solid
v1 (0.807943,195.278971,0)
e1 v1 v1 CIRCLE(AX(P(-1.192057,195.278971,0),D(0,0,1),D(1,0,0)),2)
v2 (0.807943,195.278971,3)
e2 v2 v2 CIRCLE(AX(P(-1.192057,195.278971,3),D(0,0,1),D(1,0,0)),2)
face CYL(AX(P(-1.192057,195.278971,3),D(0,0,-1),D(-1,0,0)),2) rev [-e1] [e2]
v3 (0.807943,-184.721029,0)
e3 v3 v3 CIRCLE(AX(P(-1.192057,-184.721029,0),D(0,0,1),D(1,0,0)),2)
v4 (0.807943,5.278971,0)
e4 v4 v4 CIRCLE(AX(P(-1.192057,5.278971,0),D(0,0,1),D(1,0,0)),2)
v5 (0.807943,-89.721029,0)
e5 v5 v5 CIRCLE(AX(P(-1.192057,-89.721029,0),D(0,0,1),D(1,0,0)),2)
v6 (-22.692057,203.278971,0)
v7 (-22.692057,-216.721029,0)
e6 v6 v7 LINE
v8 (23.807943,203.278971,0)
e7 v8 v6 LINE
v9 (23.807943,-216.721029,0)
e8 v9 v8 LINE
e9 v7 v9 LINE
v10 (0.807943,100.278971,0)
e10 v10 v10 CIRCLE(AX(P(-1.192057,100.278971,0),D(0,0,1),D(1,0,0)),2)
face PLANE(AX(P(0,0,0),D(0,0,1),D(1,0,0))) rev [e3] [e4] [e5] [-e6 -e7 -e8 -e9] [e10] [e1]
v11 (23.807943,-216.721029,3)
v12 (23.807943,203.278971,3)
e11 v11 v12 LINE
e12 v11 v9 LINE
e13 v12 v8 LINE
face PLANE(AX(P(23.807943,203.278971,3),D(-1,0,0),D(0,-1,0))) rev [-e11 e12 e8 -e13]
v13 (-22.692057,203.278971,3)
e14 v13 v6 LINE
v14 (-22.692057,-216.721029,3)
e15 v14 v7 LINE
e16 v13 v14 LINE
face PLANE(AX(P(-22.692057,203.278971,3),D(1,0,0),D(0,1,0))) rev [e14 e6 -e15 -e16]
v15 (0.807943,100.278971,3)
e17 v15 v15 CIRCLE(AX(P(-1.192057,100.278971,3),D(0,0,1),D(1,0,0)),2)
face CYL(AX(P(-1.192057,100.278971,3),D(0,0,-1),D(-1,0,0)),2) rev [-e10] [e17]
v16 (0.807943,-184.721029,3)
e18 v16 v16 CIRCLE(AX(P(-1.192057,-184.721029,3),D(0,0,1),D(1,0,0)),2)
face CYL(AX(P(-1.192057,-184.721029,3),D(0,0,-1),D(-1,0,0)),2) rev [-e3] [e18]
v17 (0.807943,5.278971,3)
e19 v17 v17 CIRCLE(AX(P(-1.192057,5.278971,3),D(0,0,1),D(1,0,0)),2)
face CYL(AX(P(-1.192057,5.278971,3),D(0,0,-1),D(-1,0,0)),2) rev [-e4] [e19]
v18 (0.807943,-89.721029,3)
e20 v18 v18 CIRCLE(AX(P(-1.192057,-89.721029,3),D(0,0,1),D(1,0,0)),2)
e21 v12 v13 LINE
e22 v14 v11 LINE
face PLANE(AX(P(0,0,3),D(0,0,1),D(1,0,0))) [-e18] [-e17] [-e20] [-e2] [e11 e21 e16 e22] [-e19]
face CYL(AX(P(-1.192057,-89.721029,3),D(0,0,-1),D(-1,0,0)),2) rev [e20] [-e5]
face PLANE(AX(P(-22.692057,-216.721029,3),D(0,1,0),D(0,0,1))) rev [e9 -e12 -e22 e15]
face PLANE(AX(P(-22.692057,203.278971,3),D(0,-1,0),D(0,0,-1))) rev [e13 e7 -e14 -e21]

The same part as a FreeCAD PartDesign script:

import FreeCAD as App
import Part
import Sketcher
from FreeCAD import Vector
Q = App.Units.Quantity


def add_polygon(sketch, points):
    """Adds a closed chain of lines whose ends are joined by coincident constraints."""
    first, n = sketch.GeometryCount, len(points)
    for a, b in zip(points, points[1:] + points[:1]):
        sketch.addGeometry(Part.LineSegment(App.Vector(*a, 0), App.Vector(*b, 0)), False)
    for i in range(n):
        sketch.addConstraint(Sketcher.Constraint("Coincident", first + i, 2, first + (i + 1) % n, 1))

doc = App.newDocument("Part")
body = doc.addObject("PartDesign::Body", "Body")

# Sketch on XY plane
sketch1 = body.newObject("Sketcher::SketchObject", "Sketch")
sketch1.AttachmentSupport = (doc.getObject("XY_Plane"), [""])
sketch1.MapMode = "FlatFace"
add_polygon(sketch1, [(-22.7, 203.3), (-22.7, -216.7), (23.8, -216.7), (23.8, 203.3)])  # lines 0-3
sketch1.addGeometry(Part.Circle(Vector(-1.2, -184.7, 0), Vector(0, 0, 1), 2), False)  # 4
sketch1.addGeometry(Part.Circle(Vector(-1.2, -89.7, 0), Vector(0, 0, 1), 2), False)  # 5
sketch1.addGeometry(Part.Circle(Vector(-1.2, 5.3, 0), Vector(0, 0, 1), 2), False)  # 6
sketch1.addGeometry(Part.Circle(Vector(-1.2, 100.3, 0), Vector(0, 0, 1), 2), False)  # 7
sketch1.addGeometry(Part.Circle(Vector(-1.2, 195.3, 0), Vector(0, 0, 1), 2), False)  # 8
sketch1.addConstraint([
    Sketcher.Constraint("Vertical", 0),
    Sketcher.Constraint("Horizontal", 1),
    Sketcher.Constraint("Vertical", 2),
    Sketcher.Constraint("Horizontal", 3),
    Sketcher.Constraint("Equal", 4, 5),
    Sketcher.Constraint("Equal", 5, 6),
    Sketcher.Constraint("Equal", 6, 7),
    Sketcher.Constraint("Equal", 7, 8),
    Sketcher.Constraint("Vertical", 4, 3, 5, 3),
    Sketcher.Constraint("Vertical", 5, 3, 6, 3),
    Sketcher.Constraint("Vertical", 6, 3, 7, 3),
    Sketcher.Constraint("Vertical", 7, 3, 8, 3),
    Sketcher.Constraint("Diameter", 4, Q("4 mm")),
    Sketcher.Constraint("DistanceY", 0, 2, 0, 1, Q("420 mm")),
    Sketcher.Constraint("DistanceX", 1, 1, 1, 2, Q("46.5 mm")),
    Sketcher.Constraint("DistanceY", 4, 3, 5, 3, Q("95 mm")),
    Sketcher.Constraint("DistanceY", 5, 3, 6, 3, Q("95 mm")),
    Sketcher.Constraint("DistanceY", 6, 3, 7, 3, Q("95 mm")),
    Sketcher.Constraint("DistanceY", 7, 3, 8, 3, Q("95 mm")),
    Sketcher.Constraint("DistanceY", 0, 2, 4, 3, Q("32 mm")),
    Sketcher.Constraint("DistanceX", 4, 3, 1, 2, Q("25 mm")),
    Sketcher.Constraint("DistanceY", 4, 3, -1, 1, Q("184.721029 mm")),
    Sketcher.Constraint("DistanceX", 4, 3, -1, 1, Q("1.192057 mm")),
])
pad1 = body.newObject("PartDesign::Pad", "Pad")
pad1.Profile = sketch1
pad1.Length = 3

doc.recompute()
